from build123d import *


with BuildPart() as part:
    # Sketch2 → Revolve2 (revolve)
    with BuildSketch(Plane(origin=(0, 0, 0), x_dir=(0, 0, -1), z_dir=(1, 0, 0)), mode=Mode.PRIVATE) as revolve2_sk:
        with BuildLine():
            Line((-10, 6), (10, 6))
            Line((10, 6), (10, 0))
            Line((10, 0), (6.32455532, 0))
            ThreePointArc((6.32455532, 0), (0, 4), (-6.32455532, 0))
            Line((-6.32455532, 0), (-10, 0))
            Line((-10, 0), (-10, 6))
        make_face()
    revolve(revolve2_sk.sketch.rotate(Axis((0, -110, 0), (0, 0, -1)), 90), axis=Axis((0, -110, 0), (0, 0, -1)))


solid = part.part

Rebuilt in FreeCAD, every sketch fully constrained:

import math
import FreeCAD as App
import Part
import Sketcher

V = App.Vector

doc = App.newDocument("Part")
body = doc.addObject("PartDesign::Body", "Body")

# Sketch on YZ plane
sketch1 = body.newObject("Sketcher::SketchObject", "Sketch")
sketch1.AttachmentSupport = (doc.getObject("YZ_Plane"), [""])
sketch1.MapMode = "FlatFace"
sketch1.addGeometry([
    Part.LineSegment(V(6, -10, 0), V(6, 10, 0)),  # 0
    Part.LineSegment(V(6, 10, 0), V(0, 10, 0)),  # 1
    Part.LineSegment(V(0, 10, 0), V(0, 6.3, 0)),  # 2
    Part.ArcOfCircle(Part.Circle(V(-3, 0, 0), V(0, 0, 1), 7), math.radians(-65), math.radians(65)),  # 3
    Part.LineSegment(V(0, -6.3, 0), V(0, -10, 0)),  # 4
    Part.LineSegment(V(0, -10, 0), V(6, -10, 0)),  # 5
], False)
sketch1.addGeometry(Part.LineSegment(V(-110, 10, 0), V(-110, -10, 0)), True)  # axis
sketch1.addConstraint([
    Sketcher.Constraint("Coincident", 0, 2, 1, 1),
    Sketcher.Constraint("Coincident", 1, 2, 2, 1),
    Sketcher.Constraint("Coincident", 2, 2, 3, 2),
    Sketcher.Constraint("Coincident", 3, 1, 4, 1),
    Sketcher.Constraint("Coincident", 4, 2, 5, 1),
    Sketcher.Constraint("Coincident", 5, 2, 0, 1),
    Sketcher.Constraint("Vertical", 0),
    Sketcher.Constraint("Horizontal", 1),
    Sketcher.Constraint("Vertical", 2),
    Sketcher.Constraint("Vertical", 4),
    Sketcher.Constraint("Horizontal", 5),
    Sketcher.Constraint("Vertical", 6),
    Sketcher.Constraint("Symmetric", 2, 2, 3, 1, -1, 1),
    Sketcher.Constraint("Symmetric", 1, 2, 4, 2, -1),
    Sketcher.Constraint("Horizontal", 1, 2, 6, 1),
    Sketcher.Constraint("Horizontal", 5, 2, 6, 2),
    Sketcher.Constraint("Radius", 3, 7.0),
    Sketcher.Constraint("DistanceX", 1, 2, 1, 1, 6.0),
    Sketcher.Constraint("DistanceY", 0, 1, 0, 2, 20.0),
    Sketcher.Constraint("DistanceX", 3, 3, -1, 1, 3.0),
    Sketcher.Constraint("DistanceX", 6, 1, -1, 1, 110.0),
])
revolution = body.newObject("PartDesign::Revolution", "Revolution")
revolution.Profile = sketch1
revolution.ReferenceAxis = (sketch1, ["Axis0"])
revolution.Angle = 360

doc.recompute()
